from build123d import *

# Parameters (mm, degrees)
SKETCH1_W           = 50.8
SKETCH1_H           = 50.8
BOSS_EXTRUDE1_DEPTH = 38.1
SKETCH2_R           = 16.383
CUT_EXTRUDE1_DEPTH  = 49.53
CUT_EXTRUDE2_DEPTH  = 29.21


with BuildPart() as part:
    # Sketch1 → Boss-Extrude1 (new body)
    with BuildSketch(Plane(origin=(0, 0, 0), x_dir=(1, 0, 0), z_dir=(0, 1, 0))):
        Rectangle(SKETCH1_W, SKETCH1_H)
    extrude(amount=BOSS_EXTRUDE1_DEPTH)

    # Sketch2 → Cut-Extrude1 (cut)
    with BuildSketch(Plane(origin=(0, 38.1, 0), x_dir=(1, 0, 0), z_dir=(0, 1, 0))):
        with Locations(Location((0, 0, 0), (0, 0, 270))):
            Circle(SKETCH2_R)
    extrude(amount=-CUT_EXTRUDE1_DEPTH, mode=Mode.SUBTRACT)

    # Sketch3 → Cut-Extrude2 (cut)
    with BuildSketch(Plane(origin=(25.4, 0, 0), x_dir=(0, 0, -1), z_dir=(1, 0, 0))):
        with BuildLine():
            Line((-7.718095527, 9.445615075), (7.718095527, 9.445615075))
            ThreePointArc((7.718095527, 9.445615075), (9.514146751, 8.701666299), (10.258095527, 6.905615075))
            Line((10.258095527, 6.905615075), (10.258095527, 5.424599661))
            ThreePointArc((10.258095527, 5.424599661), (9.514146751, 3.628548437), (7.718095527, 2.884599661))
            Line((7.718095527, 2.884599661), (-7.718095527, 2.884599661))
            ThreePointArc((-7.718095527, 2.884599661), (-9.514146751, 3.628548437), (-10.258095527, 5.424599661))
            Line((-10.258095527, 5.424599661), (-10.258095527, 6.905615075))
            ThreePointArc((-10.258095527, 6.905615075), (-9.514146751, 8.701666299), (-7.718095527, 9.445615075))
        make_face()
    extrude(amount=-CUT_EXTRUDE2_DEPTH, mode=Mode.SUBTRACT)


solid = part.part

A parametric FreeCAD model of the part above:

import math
import FreeCAD as App
import Part
import Sketcher

V = App.Vector
Q = App.Units.Quantity

doc = App.newDocument("Part")
body = doc.addObject("PartDesign::Body", "Body")

# Sketch on XZ plane
sketch1 = doc.addObject("Sketcher::SketchObject", "Sketch")
body.addObject(sketch1)
sketch1.AttachmentSupport = (doc.XZ_Plane, [""])
sketch1.MapMode = "FlatFace"
sketch1.addGeometry([
    Part.LineSegment(V(-25, -25, 0), V(-25, 25, 0)),
    Part.LineSegment(V(-25, 25, 0), V(25, 25, 0)),
    Part.LineSegment(V(25, 25, 0), V(25, -25, 0)),
    Part.LineSegment(V(25, -25, 0), V(-25, -25, 0)),
], False)
sketch1.addConstraint([
    Sketcher.Constraint("Coincident", 0, 2, 1, 1),
    Sketcher.Constraint("Coincident", 1, 2, 2, 1),
    Sketcher.Constraint("Coincident", 2, 2, 3, 1),
    Sketcher.Constraint("Coincident", 3, 2, 0, 1),
    Sketcher.Constraint("Vertical", 0),
    Sketcher.Constraint("Horizontal", 1),
    Sketcher.Constraint("Vertical", 2),
    Sketcher.Constraint("Horizontal", 3),
    Sketcher.Constraint("Symmetric", 0, 2, 2, 2, -1, 1),
    Sketcher.Constraint("Equal", 3, 0),
    Sketcher.Constraint("DistanceX", 1, 1, 1, 2, Q("2 in")),
])
pad1 = doc.addObject("PartDesign::Pad", "Pad")
body.addObject(pad1)
pad1.Profile = sketch1
pad1.Length = Q("1.5 in")
pad1.Reversed = True

# Sketch on XZ plane
sketch2 = doc.addObject("Sketcher::SketchObject", "Sketch001")
body.addObject(sketch2)
sketch2.AttachmentSupport = (doc.XZ_Plane, [""])
sketch2.MapMode = "FlatFace"
sketch2.AttachmentOffset = App.Placement(V(0, 0, -1.5 * 25.4), App.Rotation())
sketch2.addGeometry(Part.Circle(V(0, 0, 0), V(0, 0, 1), 16), False)
sketch2.addConstraint([
    Sketcher.Constraint("Coincident", 0, 3, -1, 1),
    Sketcher.Constraint("Diameter", 0, Q("1.29 in")),
])
pocket1 = doc.addObject("PartDesign::Pocket", "Pocket")
body.addObject(pocket1)
pocket1.Profile = sketch2
pocket1.Length = Q("1.95 in")
pocket1.Reversed = True

# Sketch on YZ plane
sketch3 = doc.addObject("Sketcher::SketchObject", "Sketch002")
body.addObject(sketch3)
sketch3.AttachmentSupport = (doc.YZ_Plane, [""])
sketch3.MapMode = "FlatFace"
sketch3.AttachmentOffset = App.Placement(V(0, 0, 1 * 25.4), App.Rotation())
sketch3.addGeometry([
    Part.LineSegment(V(9.4, -7.7, 0), V(9.4, 7.7, 0)),  # 0
    Part.ArcOfCircle(Part.Circle(V(6.9, 7.7, 0), V(0, 0, 1), 2.5), math.radians(0), math.radians(90)),  # 1
    Part.LineSegment(V(6.9, 10.3, 0), V(5.4, 10.3, 0)),  # 2
    Part.ArcOfCircle(Part.Circle(V(5.4, 7.7, 0), V(0, 0, 1), 2.5), math.radians(90), math.radians(180)),  # 3
    Part.LineSegment(V(2.9, 7.7, 0), V(2.9, -7.7, 0)),  # 4
    Part.ArcOfCircle(Part.Circle(V(5.4, -7.7, 0), V(0, 0, 1), 2.5), math.radians(-180), math.radians(-90)),  # 5
    Part.LineSegment(V(5.4, -10.3, 0), V(6.9, -10.3, 0)),  # 6
    Part.ArcOfCircle(Part.Circle(V(6.9, -7.7, 0), V(0, 0, 1), 2.5), math.radians(-90), math.radians(0)),  # 7
], False)
sketch3.addConstraint([
    Sketcher.Constraint("Tangent", 0, 2, 1, 1),
    Sketcher.Constraint("Tangent", 1, 2, 2, 1),
    Sketcher.Constraint("Tangent", 2, 2, 3, 1),
    Sketcher.Constraint("Tangent", 3, 2, 4, 1),
    Sketcher.Constraint("Tangent", 4, 2, 5, 1),
    Sketcher.Constraint("Tangent", 5, 2, 6, 1),
    Sketcher.Constraint("Tangent", 6, 2, 7, 1),
    Sketcher.Constraint("Tangent", 7, 2, 0, 1),
    Sketcher.Constraint("Vertical", 0),
    Sketcher.Constraint("Horizontal", 2),
    Sketcher.Constraint("Vertical", 4),
    Sketcher.Constraint("Horizontal", 6),
    Sketcher.Constraint("Equal", 1, 3),
    Sketcher.Constraint("Equal", 3, 5),
    Sketcher.Constraint("Equal", 5, 7),
    Sketcher.Constraint("Radius", 1, Q("0.1 in")),
    Sketcher.Constraint("DistanceY", 0, 1, 0, 2, 15.436191),
    Sketcher.Constraint("DistanceX", -1, 1, 3, 3, 5.4246),
    Sketcher.Constraint("DistanceX", 2, 2, 2, 1, 1.481015),
    Sketcher.Constraint("DistanceY", -1, 1, 1, 3, 7.718096),
])
pocket2 = doc.addObject("PartDesign::Pocket", "Pocket001")
body.addObject(pocket2)
pocket2.Profile = sketch3
pocket2.Length = Q("1.15 in")

doc.recompute()
